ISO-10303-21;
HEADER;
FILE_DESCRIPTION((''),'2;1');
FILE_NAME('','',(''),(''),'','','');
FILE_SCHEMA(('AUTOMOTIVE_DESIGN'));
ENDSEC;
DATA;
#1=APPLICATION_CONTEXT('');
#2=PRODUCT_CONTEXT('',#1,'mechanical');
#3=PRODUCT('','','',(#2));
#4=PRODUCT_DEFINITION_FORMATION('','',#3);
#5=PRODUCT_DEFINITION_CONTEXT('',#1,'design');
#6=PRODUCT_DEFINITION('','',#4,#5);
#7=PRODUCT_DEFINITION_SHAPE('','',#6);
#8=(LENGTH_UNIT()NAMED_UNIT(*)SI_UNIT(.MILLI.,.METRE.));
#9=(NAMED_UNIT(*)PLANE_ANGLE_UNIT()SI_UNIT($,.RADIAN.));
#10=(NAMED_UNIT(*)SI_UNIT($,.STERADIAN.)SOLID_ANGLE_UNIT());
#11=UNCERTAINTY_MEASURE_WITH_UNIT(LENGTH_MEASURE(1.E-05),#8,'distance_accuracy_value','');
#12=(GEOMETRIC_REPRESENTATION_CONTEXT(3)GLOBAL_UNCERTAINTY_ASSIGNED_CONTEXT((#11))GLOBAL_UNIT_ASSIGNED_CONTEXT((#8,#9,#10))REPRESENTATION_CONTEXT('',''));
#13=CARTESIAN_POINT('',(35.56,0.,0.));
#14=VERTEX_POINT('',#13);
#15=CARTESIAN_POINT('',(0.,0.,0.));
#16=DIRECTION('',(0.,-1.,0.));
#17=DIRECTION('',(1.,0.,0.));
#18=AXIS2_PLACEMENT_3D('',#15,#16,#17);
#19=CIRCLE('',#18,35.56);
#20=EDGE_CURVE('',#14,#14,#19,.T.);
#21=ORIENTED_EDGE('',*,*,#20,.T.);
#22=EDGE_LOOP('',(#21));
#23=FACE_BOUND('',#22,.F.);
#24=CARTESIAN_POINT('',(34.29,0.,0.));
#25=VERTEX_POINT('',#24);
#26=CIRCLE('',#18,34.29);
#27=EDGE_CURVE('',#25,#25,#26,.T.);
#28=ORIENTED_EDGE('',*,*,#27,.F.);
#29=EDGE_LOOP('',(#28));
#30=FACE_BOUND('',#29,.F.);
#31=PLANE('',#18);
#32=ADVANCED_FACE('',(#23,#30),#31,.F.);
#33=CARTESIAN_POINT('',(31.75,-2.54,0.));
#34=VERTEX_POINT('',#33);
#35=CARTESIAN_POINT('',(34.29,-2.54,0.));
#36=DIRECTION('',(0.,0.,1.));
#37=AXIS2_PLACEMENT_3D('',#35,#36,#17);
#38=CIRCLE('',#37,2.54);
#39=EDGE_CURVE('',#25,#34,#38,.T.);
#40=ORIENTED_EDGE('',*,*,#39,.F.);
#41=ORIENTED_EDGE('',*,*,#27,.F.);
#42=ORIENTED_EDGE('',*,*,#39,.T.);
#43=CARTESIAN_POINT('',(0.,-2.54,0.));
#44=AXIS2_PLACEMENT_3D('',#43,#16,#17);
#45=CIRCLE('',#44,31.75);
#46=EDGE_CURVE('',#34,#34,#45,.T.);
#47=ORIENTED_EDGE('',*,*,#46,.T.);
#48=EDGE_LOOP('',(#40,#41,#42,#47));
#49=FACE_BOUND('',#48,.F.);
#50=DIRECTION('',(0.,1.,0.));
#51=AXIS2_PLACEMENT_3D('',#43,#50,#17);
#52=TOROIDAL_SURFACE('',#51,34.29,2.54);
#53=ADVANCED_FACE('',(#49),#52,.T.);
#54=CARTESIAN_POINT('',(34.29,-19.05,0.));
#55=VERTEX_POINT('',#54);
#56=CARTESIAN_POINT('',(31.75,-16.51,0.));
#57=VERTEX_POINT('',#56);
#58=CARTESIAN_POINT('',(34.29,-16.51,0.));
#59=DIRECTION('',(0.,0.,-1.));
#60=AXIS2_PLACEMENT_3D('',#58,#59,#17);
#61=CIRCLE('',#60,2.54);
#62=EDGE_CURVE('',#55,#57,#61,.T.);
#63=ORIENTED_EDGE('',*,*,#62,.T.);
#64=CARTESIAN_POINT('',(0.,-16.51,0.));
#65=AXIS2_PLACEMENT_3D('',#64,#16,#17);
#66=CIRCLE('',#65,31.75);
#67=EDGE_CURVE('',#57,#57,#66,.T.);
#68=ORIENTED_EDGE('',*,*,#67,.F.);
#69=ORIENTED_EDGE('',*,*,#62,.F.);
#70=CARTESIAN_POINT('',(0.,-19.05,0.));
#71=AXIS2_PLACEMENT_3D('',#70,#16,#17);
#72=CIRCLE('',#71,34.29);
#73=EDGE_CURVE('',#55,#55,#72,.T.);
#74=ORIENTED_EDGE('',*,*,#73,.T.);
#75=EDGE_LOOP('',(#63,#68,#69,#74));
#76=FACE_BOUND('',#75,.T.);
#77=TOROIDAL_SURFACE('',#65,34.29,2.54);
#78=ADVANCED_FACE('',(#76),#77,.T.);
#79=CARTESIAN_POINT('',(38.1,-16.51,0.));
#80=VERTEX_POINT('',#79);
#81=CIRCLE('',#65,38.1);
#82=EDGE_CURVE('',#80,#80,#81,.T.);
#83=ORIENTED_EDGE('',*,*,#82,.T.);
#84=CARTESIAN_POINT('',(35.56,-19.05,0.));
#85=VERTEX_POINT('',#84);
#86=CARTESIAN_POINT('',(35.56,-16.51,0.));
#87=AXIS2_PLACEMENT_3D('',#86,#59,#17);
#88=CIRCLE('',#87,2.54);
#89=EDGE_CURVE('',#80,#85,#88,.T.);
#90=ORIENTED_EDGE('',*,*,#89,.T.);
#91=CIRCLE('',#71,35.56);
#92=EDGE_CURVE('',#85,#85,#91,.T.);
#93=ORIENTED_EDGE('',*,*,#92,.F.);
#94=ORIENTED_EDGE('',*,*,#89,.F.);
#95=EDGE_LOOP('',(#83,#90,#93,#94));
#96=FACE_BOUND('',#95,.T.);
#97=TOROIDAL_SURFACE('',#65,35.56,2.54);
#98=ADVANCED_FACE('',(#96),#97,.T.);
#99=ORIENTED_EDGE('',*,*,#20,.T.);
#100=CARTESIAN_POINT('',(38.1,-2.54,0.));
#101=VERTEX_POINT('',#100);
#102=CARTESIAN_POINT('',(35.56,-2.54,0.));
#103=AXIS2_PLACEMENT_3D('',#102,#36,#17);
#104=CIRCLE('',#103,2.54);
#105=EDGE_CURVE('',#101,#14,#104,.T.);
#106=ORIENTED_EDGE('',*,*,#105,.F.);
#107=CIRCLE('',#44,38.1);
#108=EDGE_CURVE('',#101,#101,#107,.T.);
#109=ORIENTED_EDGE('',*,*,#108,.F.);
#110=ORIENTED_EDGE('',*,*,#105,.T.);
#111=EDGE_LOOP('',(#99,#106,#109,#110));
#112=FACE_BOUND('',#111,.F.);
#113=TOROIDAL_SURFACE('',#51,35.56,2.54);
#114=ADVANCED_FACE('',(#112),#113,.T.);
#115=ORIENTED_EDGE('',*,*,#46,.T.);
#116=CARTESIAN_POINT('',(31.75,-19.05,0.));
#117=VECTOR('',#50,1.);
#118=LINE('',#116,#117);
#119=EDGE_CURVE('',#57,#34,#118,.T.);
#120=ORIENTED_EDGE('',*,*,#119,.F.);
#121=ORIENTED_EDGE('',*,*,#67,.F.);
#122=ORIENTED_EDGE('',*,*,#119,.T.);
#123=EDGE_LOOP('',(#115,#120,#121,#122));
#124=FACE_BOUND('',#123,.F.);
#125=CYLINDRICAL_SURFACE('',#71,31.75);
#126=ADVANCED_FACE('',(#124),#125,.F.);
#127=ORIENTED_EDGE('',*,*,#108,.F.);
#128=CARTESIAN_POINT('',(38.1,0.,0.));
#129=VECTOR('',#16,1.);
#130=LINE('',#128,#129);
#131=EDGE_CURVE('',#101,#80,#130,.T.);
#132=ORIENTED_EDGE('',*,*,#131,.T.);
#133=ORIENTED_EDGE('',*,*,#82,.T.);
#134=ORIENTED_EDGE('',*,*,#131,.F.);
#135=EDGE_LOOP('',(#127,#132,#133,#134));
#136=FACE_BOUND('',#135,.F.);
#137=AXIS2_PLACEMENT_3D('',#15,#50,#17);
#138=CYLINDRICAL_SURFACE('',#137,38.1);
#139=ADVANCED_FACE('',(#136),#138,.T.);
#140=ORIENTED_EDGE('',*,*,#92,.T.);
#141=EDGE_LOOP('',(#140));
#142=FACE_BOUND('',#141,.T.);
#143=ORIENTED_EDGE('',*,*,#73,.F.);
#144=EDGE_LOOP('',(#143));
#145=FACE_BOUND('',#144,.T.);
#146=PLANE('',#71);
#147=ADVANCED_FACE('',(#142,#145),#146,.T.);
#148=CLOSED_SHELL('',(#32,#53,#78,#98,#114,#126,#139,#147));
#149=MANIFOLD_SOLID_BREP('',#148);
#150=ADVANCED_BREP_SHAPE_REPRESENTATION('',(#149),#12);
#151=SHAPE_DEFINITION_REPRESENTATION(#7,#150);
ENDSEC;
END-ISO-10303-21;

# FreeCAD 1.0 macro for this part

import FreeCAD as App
import Part
import Sketcher
Q = App.Units.Quantity


def edges_at(feature, points):
    """Names of the edges that pass closest to the given points."""
    edges = feature.Shape.Edges
    near = lambda p: min(range(len(edges)), key=lambda i: edges[i].distToShape(Part.Vertex(*p))[0])
    return sorted({f"Edge{near(p) + 1}" for p in points})

doc = App.newDocument("Part")
params = doc.addObject("Spreadsheet::Sheet", "Params")
for row, (alias, value) in enumerate([
    ("sketch1_diameter", "3 in"),
    ("pad1_length", "0.75 in"),
    ("sketch2_diameter", "2.5 in"),
    ("fillet_radius", "0.1 in"),
    ("fillet2_radius", "0.1 in"),
], start=1):
    params.set(f"A{row}", alias)
    params.set(f"B{row}", "=" + value)
    params.setAlias(f"B{row}", alias)

body = doc.addObject("PartDesign::Body", "Body")

sketch1 = doc.addObject("Sketcher::SketchObject", "Sketch")
body.addObject(sketch1)
sketch1.AttachmentSupport = (doc.XZ_Plane, [""])
sketch1.MapMode = "FlatFace"
sketch1.addGeometry(Part.Circle(App.Vector(0, 0, 0), App.Vector(0, 0, 1), 38), False)
sketch1.addConstraint(Sketcher.Constraint("Coincident", 0, 3, -1, 1))
sketch1.addConstraint(Sketcher.Constraint("Diameter", 0, Q("3 in")))
sketch1.setExpression("Constraints[1]", "Params.sketch1_diameter")
pad1 = doc.addObject("PartDesign::Pad", "Pad")
body.addObject(pad1)
pad1.Profile = sketch1
pad1.setExpression("Length", "Params.pad1_length")

sketch2 = doc.addObject("Sketcher::SketchObject", "Sketch001")
body.addObject(sketch2)
sketch2.AttachmentSupport = (doc.XZ_Plane, [""])
sketch2.MapMode = "FlatFace"
sketch2.AttachmentOffset = App.Placement(App.Vector(0, 0, 0.75 * 25.4), App.Rotation())
sketch2.addGeometry(Part.Circle(App.Vector(0, 0, 0), App.Vector(0, 0, 1), 32), False)
sketch2.addConstraint(Sketcher.Constraint("Coincident", 0, 3, -1, 1))
sketch2.addConstraint(Sketcher.Constraint("Diameter", 0, Q("2.5 in")))
sketch2.setExpression("Constraints[1]", "Params.sketch2_diameter")
pocket1 = doc.addObject("PartDesign::Pocket", "Pocket")
body.addObject(pocket1)
pocket1.Profile = sketch2
pocket1.Type = "ThroughAll"
doc.recompute()

fillet = doc.addObject("PartDesign::Fillet", "Fillet")
body.addObject(fillet)
fillet.Base = (pocket1, edges_at(pocket1, [(-38.1, -19.05, 0)]))
fillet.setExpression("Radius", "Params.fillet_radius")
doc.recompute()

fillet2 = doc.addObject("PartDesign::Fillet", "Fillet001")
body.addObject(fillet2)
fillet2.Base = (fillet, edges_at(fillet, [(-31.75, -19.05, 0), (-38.1, 0, 0), (-31.75, 0, 0)]))
fillet2.setExpression("Radius", "Params.fillet2_radius")

doc.recompute()
